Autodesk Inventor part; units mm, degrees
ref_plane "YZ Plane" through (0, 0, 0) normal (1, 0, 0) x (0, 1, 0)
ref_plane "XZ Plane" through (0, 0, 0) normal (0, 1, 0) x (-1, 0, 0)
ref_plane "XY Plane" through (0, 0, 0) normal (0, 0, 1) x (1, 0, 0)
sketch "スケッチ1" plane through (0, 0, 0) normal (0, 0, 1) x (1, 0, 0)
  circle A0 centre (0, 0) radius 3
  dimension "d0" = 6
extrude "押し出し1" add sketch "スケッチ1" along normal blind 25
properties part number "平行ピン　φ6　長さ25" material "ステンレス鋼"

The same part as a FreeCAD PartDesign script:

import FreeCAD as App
import Part
import Sketcher
from FreeCAD import Vector

doc = App.newDocument("Part")
body = doc.addObject("PartDesign::Body", "Body")

# Sketch on XY plane
sketch1 = body.newObject("Sketcher::SketchObject", "Sketch")
sketch1.AttachmentSupport = (doc.getObject("XY_Plane"), [""])
sketch1.MapMode = "FlatFace"
sketch1.addGeometry(Part.Circle(Vector(0, 0, 0), Vector(0, 0, 1), 3), False)
sketch1.addConstraint([
    Sketcher.Constraint("Coincident", 0, 3, -1, 1),
    Sketcher.Constraint("Diameter", 0, 6.0),
])
pad1 = body.newObject("PartDesign::Pad", "Pad")
pad1.Profile = sketch1
pad1.Length = 25

doc.recompute()
